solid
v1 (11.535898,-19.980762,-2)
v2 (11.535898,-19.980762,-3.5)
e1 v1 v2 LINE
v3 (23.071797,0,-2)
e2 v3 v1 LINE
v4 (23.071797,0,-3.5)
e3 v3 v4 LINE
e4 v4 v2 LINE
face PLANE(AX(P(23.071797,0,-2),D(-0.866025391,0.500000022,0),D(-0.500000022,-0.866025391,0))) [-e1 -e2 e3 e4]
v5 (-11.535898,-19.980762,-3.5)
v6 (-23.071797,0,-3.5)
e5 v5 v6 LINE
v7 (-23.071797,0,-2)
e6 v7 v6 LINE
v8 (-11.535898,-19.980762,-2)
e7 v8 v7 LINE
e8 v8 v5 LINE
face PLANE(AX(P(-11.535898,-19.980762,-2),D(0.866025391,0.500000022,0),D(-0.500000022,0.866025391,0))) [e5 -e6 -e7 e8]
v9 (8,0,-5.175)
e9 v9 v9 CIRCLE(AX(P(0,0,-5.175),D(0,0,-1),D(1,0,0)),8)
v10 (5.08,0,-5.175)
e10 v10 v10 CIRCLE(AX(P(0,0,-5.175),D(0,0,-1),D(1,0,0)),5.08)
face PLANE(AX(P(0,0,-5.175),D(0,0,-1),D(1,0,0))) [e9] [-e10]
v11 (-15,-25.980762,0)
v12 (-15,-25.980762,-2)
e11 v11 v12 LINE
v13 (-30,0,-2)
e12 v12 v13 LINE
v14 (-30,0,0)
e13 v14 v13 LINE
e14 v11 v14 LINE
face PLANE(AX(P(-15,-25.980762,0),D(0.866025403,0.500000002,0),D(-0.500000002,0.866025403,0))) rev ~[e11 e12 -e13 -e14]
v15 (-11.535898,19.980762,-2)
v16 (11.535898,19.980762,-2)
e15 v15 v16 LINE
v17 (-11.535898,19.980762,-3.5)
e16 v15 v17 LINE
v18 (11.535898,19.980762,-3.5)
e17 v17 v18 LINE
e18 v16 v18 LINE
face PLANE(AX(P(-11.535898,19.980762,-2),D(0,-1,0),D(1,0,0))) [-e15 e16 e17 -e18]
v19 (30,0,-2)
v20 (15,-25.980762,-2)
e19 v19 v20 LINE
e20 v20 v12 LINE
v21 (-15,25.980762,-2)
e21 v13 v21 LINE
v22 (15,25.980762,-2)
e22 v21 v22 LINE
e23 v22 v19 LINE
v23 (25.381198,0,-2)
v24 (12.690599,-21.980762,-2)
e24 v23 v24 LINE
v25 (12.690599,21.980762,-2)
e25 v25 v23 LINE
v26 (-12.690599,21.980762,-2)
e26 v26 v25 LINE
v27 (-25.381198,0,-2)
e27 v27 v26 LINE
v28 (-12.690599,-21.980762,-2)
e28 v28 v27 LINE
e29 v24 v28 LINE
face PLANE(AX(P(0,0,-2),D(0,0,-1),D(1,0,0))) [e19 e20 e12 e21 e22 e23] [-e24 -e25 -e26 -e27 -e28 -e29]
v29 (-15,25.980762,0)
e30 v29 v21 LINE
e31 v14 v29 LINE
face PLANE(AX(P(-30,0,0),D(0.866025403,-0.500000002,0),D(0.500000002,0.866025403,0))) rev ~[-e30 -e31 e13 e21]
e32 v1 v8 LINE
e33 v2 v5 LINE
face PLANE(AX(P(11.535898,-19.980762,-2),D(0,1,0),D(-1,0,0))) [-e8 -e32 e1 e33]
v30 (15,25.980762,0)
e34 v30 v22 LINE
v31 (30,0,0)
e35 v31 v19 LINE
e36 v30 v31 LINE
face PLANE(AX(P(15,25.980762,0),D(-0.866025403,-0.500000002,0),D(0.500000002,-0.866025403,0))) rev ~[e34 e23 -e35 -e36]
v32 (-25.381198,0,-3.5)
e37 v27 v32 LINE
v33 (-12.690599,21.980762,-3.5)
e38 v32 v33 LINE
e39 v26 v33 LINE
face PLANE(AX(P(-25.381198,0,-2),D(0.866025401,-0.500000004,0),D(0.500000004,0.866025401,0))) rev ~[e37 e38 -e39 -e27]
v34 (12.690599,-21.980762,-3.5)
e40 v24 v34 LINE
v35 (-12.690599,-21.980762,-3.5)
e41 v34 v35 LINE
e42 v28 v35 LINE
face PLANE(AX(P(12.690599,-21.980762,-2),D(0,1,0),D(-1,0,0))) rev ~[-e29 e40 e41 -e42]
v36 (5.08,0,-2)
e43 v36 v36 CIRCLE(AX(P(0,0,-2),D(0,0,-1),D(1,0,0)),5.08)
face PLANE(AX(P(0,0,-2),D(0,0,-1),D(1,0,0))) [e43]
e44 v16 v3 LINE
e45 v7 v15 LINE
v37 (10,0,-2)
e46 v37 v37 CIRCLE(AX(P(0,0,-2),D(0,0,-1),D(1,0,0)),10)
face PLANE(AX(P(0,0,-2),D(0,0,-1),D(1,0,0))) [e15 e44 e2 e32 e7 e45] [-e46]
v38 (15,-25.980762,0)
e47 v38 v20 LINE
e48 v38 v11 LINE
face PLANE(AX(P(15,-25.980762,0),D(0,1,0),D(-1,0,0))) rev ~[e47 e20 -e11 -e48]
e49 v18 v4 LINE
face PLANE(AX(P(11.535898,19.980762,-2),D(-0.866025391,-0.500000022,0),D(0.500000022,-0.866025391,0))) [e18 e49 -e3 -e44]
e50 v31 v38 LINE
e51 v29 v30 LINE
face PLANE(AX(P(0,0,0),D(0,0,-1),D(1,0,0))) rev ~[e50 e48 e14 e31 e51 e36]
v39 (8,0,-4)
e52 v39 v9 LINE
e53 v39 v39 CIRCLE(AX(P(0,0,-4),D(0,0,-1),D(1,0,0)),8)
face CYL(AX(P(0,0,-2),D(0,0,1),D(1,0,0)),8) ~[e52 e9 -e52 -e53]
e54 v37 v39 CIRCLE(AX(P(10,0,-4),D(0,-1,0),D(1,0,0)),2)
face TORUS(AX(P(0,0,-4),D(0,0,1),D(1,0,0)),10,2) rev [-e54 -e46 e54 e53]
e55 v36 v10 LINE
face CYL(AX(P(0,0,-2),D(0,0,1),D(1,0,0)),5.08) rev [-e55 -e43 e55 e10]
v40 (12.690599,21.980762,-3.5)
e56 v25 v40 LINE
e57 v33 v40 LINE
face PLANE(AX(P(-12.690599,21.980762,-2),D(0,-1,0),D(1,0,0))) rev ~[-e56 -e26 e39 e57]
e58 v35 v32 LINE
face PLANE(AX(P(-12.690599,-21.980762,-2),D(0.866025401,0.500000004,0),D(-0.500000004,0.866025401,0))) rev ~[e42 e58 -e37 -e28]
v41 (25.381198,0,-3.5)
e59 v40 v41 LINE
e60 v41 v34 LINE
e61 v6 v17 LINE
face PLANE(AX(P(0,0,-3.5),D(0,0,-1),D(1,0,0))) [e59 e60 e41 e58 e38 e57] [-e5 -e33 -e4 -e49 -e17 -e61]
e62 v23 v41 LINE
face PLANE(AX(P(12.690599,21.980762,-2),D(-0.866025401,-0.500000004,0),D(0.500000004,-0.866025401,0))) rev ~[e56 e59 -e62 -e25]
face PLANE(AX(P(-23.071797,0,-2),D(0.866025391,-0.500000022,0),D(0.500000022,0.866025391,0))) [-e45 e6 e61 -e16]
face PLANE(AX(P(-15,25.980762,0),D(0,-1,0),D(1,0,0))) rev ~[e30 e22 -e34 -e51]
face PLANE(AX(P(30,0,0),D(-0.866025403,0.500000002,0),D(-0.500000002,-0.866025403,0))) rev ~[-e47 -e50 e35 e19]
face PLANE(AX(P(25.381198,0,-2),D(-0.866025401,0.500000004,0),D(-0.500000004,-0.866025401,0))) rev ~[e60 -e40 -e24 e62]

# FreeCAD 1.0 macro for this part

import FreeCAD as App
import Part
import Sketcher
from FreeCAD import Vector
Q = App.Units.Quantity


def edges_at(feature, points):
    """Names of the edges that pass closest to the given points."""
    edges = feature.Shape.Edges
    near = lambda p: min(range(len(edges)), key=lambda i: edges[i].distToShape(Part.Vertex(*p))[0])
    return sorted({f"Edge{near(p) + 1}" for p in points})


def add_polygon(sketch, points):
    """Adds a closed chain of lines whose ends are joined by coincident constraints."""
    first, n = sketch.GeometryCount, len(points)
    for a, b in zip(points, points[1:] + points[:1]):
        sketch.addGeometry(Part.LineSegment(App.Vector(*a, 0), App.Vector(*b, 0)), False)
    for i in range(n):
        sketch.addConstraint(Sketcher.Constraint("Coincident", first + i, 2, first + (i + 1) % n, 1))

doc = App.newDocument("Part")
body = doc.addObject("PartDesign::Body", "Body")

sketch1 = body.newObject("Sketcher::SketchObject", "Sketch")
sketch1.AttachmentSupport = (doc.getObject("XY_Plane"), [""])
sketch1.MapMode = "FlatFace"
add_polygon(sketch1, [(30, 0), (15, -26), (-15, -26), (-30, 0), (-15, 26), (15, 26)])
sketch1.addConstraint([
    Sketcher.Constraint("Horizontal", 1),
    Sketcher.Constraint("Horizontal", 4),
    Sketcher.Constraint("Symmetric", 0, 2, 3, 2, -1, 1),
    Sketcher.Constraint("Symmetric", 2, 2, 5, 2, -1, 1),
    Sketcher.Constraint("PointOnObject", 2, 2, -1),
    Sketcher.Constraint("Parallel", 2, 5),
    Sketcher.Constraint("Vertical", 1, 2, 3, 2),
    Sketcher.Constraint("DistanceX", 1, 2, 1, 1, 30.0),
    Sketcher.Constraint("Angle", 0, Q("-120 deg")),
    Sketcher.Constraint("Distance", 0, 30.0),
])
pad1 = body.newObject("PartDesign::Pad", "Pad")
pad1.Profile = sketch1
pad1.Length = 2
pad1.Reversed = True

sketch2 = body.newObject("Sketcher::SketchObject", "Sketch001")
sketch2.AttachmentSupport = (doc.getObject("XY_Plane"), [""])
sketch2.MapMode = "FlatFace"
sketch2.AttachmentOffset = App.Placement(Vector(0, 0, -2), App.Rotation())
sketch2.addGeometry([
    Part.Circle(Vector(0, 0, 0), Vector(0, 0, 1), 8),
    Part.Circle(Vector(0, 0, 0), Vector(0, 0, 1), 5),
], False)
sketch2.addConstraint([
    Sketcher.Constraint("Coincident", 0, 3, -1, 1),
    Sketcher.Constraint("Coincident", 1, 3, -1, 1),
    Sketcher.Constraint("Diameter", 0, 16.0),
    Sketcher.Constraint("Diameter", 1, 10.16),
])
pad2 = body.newObject("PartDesign::Pad", "Pad001")
pad2.Profile = sketch2
pad2.Length = 3.175
pad2.Reversed = True
doc.recompute()

fillet = body.newObject("PartDesign::Fillet", "Fillet")
fillet.Base = (pad2, edges_at(pad2, [(-8, 0, -2)]))
fillet.Radius = 2

sketch3 = body.newObject("Sketcher::SketchObject", "Sketch002")
sketch3.AttachmentSupport = (doc.getObject("XY_Plane"), [""])
sketch3.MapMode = "FlatFace"
sketch3.AttachmentOffset = App.Placement(Vector(0, 0, -2), App.Rotation())
add_polygon(sketch3, [(13, 22), (25, 0), (13, -22), (-13, -22), (-25, 0), (-13, 22)])
add_polygon(sketch3, [(23, 0), (12, 20), (-12, 20), (-23, 0), (-12, -20), (12, -20)])
sketch3.addConstraint([
    Sketcher.Constraint("Horizontal", 2),
    Sketcher.Constraint("Horizontal", 5),
    Sketcher.Constraint("Horizontal", 7),
    Sketcher.Constraint("Horizontal", 10),
    Sketcher.Constraint("Symmetric", 0, 2, 3, 2, -1, 1),
    Sketcher.Constraint("Symmetric", 1, 2, 4, 2, -1, 1),
    Sketcher.Constraint("Symmetric", 6, 2, 9, 2, -1, 1),
    Sketcher.Constraint("Symmetric", 8, 2, 11, 2, -1, 1),
    Sketcher.Constraint("PointOnObject", 0, 2, -1),
    Sketcher.Constraint("PointOnObject", 8, 2, -1),
    Sketcher.Constraint("Parallel", 0, 3),
    Sketcher.Constraint("Parallel", 3, 6),
    Sketcher.Constraint("Parallel", 4, 8),
    Sketcher.Constraint("Parallel", 8, 11),
    Sketcher.Constraint("Vertical", 2, 2, 4, 2),
    Sketcher.Constraint("Angle", 0, Q("-60 deg")),
    Sketcher.Constraint("DistanceY", 6, 2, 5, 2, 2.0),
    Sketcher.Constraint("DistanceX", 2, 2, 2, 1, 25.381198),
    Sketcher.Constraint("DistanceX", -1, 1, 0, 2, 25.381198),
    Sketcher.Constraint("DistanceX", 6, 2, 5, 2, 1.154701),
])
pad3 = body.newObject("PartDesign::Pad", "Pad002")
pad3.Profile = sketch3
pad3.Length = 1.5
pad3.Reversed = True

doc.recompute()
